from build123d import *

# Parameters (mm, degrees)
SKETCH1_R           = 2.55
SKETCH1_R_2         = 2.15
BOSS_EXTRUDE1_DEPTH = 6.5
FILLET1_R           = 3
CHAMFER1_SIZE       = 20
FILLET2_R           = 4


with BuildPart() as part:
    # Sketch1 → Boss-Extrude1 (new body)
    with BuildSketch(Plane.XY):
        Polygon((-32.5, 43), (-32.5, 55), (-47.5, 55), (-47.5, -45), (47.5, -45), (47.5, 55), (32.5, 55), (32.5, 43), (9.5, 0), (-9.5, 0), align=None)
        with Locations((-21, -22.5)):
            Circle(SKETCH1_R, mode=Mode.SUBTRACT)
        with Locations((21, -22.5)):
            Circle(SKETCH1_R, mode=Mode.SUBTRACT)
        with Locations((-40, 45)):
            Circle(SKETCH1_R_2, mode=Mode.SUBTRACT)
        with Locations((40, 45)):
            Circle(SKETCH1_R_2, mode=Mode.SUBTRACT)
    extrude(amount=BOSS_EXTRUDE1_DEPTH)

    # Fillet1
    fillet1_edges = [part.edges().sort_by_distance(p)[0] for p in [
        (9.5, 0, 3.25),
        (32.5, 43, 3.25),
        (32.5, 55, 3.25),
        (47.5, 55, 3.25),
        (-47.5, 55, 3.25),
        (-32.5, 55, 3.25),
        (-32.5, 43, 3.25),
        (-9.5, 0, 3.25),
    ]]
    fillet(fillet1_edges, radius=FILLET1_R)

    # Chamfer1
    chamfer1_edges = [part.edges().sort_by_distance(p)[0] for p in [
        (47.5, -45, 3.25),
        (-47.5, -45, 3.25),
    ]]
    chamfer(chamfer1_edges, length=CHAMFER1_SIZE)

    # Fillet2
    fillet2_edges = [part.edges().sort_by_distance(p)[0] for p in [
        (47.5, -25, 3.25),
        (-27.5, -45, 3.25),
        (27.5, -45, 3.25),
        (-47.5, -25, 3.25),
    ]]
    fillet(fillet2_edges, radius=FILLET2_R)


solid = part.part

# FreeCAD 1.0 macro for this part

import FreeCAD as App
import Part
import Sketcher

V = App.Vector


def edges_at(feature, points):
    """Names of the edges that pass closest to the given points."""
    edges = feature.Shape.Edges
    near = lambda p: min(range(len(edges)), key=lambda i: edges[i].distToShape(Part.Vertex(*p))[0])
    return sorted({f"Edge{near(p) + 1}" for p in points})

doc = App.newDocument("Part")
body = doc.addObject("PartDesign::Body", "Body")

# Sketch on XY plane
sketch1 = doc.addObject("Sketcher::SketchObject", "Sketch")
body.addObject(sketch1)
sketch1.AttachmentSupport = (doc.XY_Plane, [""])
sketch1.MapMode = "FlatFace"
sketch1.addGeometry([
    Part.LineSegment(V(-32.5, 43, 0), V(-32.5, 55, 0)),  # 0
    Part.LineSegment(V(-32.5, 55, 0), V(-47.5, 55, 0)),  # 1
    Part.LineSegment(V(-47.5, 55, 0), V(-47.5, -45, 0)),  # 2
    Part.LineSegment(V(-47.5, -45, 0), V(47.5, -45, 0)),  # 3
    Part.LineSegment(V(47.5, -45, 0), V(47.5, 55, 0)),  # 4
    Part.LineSegment(V(47.5, 55, 0), V(32.5, 55, 0)),  # 5
    Part.LineSegment(V(32.5, 55, 0), V(32.5, 43, 0)),  # 6
    Part.LineSegment(V(32.5, 43, 0), V(9.5, 0, 0)),  # 7
    Part.LineSegment(V(9.5, 0, 0), V(-9.5, 0, 0)),  # 8
    Part.LineSegment(V(-9.5, 0, 0), V(-32.5, 43, 0)),  # 9
    Part.Circle(V(-21, -22.5, 0), V(0, 0, 1), 2.5),  # 10
    Part.Circle(V(21, -22.5, 0), V(0, 0, 1), 2.5),  # 11
    Part.Circle(V(-40, 45, 0), V(0, 0, 1), 2.1),  # 12
    Part.Circle(V(40, 45, 0), V(0, 0, 1), 2.1),  # 13
], False)
sketch1.addConstraint([
    Sketcher.Constraint("Coincident", 0, 2, 1, 1),
    Sketcher.Constraint("Coincident", 1, 2, 2, 1),
    Sketcher.Constraint("Coincident", 2, 2, 3, 1),
    Sketcher.Constraint("Coincident", 3, 2, 4, 1),
    Sketcher.Constraint("Coincident", 4, 2, 5, 1),
    Sketcher.Constraint("Coincident", 5, 2, 6, 1),
    Sketcher.Constraint("Coincident", 6, 2, 7, 1),
    Sketcher.Constraint("Coincident", 7, 2, 8, 1),
    Sketcher.Constraint("Coincident", 8, 2, 9, 1),
    Sketcher.Constraint("Coincident", 9, 2, 0, 1),
    Sketcher.Constraint("Vertical", 0),
    Sketcher.Constraint("Horizontal", 1),
    Sketcher.Constraint("Vertical", 2),
    Sketcher.Constraint("Horizontal", 3),
    Sketcher.Constraint("Vertical", 4),
    Sketcher.Constraint("Horizontal", 5),
    Sketcher.Constraint("Vertical", 6),
    Sketcher.Constraint("Horizontal", 8),
    Sketcher.Constraint("Equal", 10, 11),
    Sketcher.Constraint("Equal", 12, 13),
    Sketcher.Constraint("Symmetric", 7, 2, 8, 2, -1, 1),
    Sketcher.Constraint("Symmetric", 10, 3, 11, 3, -2),
    Sketcher.Constraint("Symmetric", 12, 3, 13, 3, -2),
    Sketcher.Constraint("Symmetric", 1, 2, 4, 2, -2),
    Sketcher.Constraint("Symmetric", 6, 2, 9, 2, -2),
    Sketcher.Constraint("Diameter", 10, 5.1),
    Sketcher.Constraint("Diameter", 12, 4.3),
    Sketcher.Constraint("DistanceX", 1, 2, 1, 1, 15.0),
    Sketcher.Constraint("DistanceX", 3, 1, 3, 2, 95.0),
    Sketcher.Constraint("DistanceX", 8, 2, 8, 1, 19.0),
    Sketcher.Constraint("DistanceY", 0, 1, 0, 2, 12.0),
    Sketcher.Constraint("DistanceY", 2, 2, 2, 1, 100.0),
    Sketcher.Constraint("DistanceX", 10, 3, -1, 1, 21.0),
    Sketcher.Constraint("DistanceX", 12, 3, -1, 1, 40.0),
    Sketcher.Constraint("DistanceY", -1, 1, 12, 3, 45.0),
    Sketcher.Constraint("DistanceY", -1, 1, 0, 2, 55.0),
    Sketcher.Constraint("DistanceY", 10, 3, -1, 1, 22.5),
])
pad1 = doc.addObject("PartDesign::Pad", "Pad")
body.addObject(pad1)
pad1.Profile = sketch1
pad1.Length = 6.5
doc.recompute()

fillet = doc.addObject("PartDesign::Fillet", "Fillet")
body.addObject(fillet)
fillet.Base = (pad1, edges_at(pad1, [
    (9.5, 0, 3.25),
    (32.5, 43, 3.25),
    (32.5, 55, 3.25),
    (47.5, 55, 3.25),
    (-47.5, 55, 3.25),
    (-32.5, 55, 3.25),
    (-32.5, 43, 3.25),
    (-9.5, 0, 3.25),
]))
fillet.Radius = 3
doc.recompute()

chamfer = doc.addObject("PartDesign::Chamfer", "Chamfer")
body.addObject(chamfer)
chamfer.Base = (fillet, edges_at(fillet, [(47.5, -45, 3.25), (-47.5, -45, 3.25)]))
chamfer.Size = 20
doc.recompute()

fillet2 = doc.addObject("PartDesign::Fillet", "Fillet001")
body.addObject(fillet2)
fillet2.Base = (chamfer, edges_at(chamfer, [
    (47.5, -25, 3.25),
    (-27.5, -45, 3.25),
    (27.5, -45, 3.25),
    (-47.5, -25, 3.25),
]))
fillet2.Radius = 4

doc.recompute()
